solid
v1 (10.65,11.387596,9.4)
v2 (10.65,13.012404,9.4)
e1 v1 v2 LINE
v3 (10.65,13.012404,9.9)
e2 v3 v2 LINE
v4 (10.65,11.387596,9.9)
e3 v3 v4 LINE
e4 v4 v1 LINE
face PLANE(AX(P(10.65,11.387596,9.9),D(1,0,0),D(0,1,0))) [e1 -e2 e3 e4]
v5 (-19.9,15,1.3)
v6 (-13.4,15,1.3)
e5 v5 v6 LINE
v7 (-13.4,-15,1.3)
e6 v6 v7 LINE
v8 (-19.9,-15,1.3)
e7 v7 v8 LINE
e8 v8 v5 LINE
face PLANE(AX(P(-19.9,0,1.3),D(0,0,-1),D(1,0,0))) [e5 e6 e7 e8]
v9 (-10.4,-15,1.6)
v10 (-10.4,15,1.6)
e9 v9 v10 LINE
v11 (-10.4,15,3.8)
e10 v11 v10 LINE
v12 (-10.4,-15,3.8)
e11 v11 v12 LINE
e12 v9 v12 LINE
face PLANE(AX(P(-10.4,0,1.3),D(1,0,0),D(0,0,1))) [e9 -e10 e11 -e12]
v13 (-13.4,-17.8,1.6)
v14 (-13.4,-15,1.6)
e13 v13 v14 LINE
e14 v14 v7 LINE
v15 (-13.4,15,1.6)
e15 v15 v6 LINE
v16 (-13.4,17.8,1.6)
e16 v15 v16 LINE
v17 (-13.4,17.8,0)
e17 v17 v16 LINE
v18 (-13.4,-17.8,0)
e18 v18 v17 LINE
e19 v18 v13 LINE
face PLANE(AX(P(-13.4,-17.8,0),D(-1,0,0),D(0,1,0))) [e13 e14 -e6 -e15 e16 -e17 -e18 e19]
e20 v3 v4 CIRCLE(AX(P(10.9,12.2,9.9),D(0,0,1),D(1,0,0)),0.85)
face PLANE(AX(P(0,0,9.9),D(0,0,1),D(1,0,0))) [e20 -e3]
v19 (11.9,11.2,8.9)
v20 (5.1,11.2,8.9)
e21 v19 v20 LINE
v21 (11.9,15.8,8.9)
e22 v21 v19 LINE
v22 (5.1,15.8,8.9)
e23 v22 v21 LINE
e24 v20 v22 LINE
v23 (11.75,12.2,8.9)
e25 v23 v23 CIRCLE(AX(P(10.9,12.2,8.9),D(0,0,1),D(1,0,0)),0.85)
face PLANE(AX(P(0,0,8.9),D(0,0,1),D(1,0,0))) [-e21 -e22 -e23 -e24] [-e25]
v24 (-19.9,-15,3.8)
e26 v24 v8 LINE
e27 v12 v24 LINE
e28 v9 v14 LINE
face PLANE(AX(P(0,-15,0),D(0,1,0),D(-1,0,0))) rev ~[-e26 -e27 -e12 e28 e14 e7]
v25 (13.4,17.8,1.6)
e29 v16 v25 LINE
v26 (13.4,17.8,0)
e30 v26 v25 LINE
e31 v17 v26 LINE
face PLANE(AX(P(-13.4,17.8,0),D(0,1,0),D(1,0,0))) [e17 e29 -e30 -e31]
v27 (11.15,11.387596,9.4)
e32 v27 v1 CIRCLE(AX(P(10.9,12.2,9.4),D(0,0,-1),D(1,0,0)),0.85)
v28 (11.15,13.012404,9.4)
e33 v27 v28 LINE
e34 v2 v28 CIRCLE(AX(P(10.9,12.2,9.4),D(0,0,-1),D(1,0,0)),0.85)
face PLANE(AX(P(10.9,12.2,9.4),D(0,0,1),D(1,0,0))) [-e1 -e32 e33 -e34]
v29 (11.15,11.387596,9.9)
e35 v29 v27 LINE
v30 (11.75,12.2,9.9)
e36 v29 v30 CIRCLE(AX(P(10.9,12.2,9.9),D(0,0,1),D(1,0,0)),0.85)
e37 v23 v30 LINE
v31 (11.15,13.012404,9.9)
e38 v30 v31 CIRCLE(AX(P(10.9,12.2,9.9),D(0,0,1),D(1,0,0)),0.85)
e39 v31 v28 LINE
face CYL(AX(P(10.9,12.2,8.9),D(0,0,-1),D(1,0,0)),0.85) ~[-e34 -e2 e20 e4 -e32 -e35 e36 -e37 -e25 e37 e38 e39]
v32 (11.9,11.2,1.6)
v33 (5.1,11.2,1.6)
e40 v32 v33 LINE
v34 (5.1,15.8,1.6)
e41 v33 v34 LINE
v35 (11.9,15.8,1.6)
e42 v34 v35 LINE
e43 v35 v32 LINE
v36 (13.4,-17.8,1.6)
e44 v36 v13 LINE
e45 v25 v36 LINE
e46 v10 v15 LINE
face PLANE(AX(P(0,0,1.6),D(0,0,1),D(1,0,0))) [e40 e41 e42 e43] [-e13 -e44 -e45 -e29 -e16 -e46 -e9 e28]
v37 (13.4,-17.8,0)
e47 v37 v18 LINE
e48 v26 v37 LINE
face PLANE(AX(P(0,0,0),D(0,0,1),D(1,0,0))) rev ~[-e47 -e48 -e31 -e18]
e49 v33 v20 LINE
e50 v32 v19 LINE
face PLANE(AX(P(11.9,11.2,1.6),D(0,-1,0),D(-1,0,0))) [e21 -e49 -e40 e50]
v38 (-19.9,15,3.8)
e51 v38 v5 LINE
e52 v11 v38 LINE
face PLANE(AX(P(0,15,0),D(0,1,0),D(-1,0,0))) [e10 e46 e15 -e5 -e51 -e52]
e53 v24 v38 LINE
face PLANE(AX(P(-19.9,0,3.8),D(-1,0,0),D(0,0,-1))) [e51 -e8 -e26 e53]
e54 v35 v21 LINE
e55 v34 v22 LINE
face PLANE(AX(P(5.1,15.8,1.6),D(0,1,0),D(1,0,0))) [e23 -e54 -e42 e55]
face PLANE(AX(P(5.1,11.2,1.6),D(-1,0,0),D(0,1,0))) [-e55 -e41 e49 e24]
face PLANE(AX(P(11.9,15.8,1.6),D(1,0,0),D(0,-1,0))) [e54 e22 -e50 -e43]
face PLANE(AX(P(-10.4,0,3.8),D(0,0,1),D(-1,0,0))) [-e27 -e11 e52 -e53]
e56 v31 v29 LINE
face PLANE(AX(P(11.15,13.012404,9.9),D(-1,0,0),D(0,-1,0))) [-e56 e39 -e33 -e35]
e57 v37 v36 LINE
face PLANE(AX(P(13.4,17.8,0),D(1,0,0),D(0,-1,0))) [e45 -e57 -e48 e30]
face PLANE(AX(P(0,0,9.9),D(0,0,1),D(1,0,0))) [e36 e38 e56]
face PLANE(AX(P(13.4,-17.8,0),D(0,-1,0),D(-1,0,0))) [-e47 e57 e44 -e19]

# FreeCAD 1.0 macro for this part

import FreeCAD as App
import Part
import Sketcher

V = App.Vector

doc = App.newDocument("Part")
body = doc.addObject("PartDesign::Body", "Body")

# Sketch on XY plane
sketch1 = body.newObject("Sketcher::SketchObject", "Sketch")
sketch1.AttachmentSupport = (doc.getObject("XY_Plane"), [""])
sketch1.MapMode = "FlatFace"
sketch1.addGeometry([
    Part.LineSegment(V(13, 18, 0), V(-13, 18, 0)),
    Part.LineSegment(V(-13, 18, 0), V(-13, -18, 0)),
    Part.LineSegment(V(-13, -18, 0), V(13, -18, 0)),
    Part.LineSegment(V(13, -18, 0), V(13, 18, 0)),
], False)
sketch1.addConstraint([
    Sketcher.Constraint("Coincident", 0, 2, 1, 1),
    Sketcher.Constraint("Coincident", 1, 2, 2, 1),
    Sketcher.Constraint("Coincident", 2, 2, 3, 1),
    Sketcher.Constraint("Coincident", 3, 2, 0, 1),
    Sketcher.Constraint("Horizontal", 0),
    Sketcher.Constraint("Vertical", 1),
    Sketcher.Constraint("Horizontal", 2),
    Sketcher.Constraint("Vertical", 3),
    Sketcher.Constraint("Symmetric", 0, 2, 2, 2, -1, 1),
    Sketcher.Constraint("DistanceX", 0, 2, 0, 1, 26.8),
    Sketcher.Constraint("DistanceY", 1, 2, 1, 1, 35.6),
])
pad1 = body.newObject("PartDesign::Pad", "Pad")
pad1.Profile = sketch1
pad1.Length = 1.6

# Sketch on XY plane
sketch2 = body.newObject("Sketcher::SketchObject", "Sketch001")
sketch2.AttachmentSupport = (doc.getObject("XY_Plane"), [""])
sketch2.MapMode = "FlatFace"
sketch2.AttachmentOffset = App.Placement(V(0, 0, 1.6), App.Rotation())
sketch2.addGeometry([
    Part.LineSegment(V(11.9, 15.8, 0), V(5.1, 15.8, 0)),
    Part.LineSegment(V(5.1, 15.8, 0), V(5.1, 11.2, 0)),
    Part.LineSegment(V(5.1, 11.2, 0), V(11.9, 11.2, 0)),
    Part.LineSegment(V(11.9, 11.2, 0), V(11.9, 15.8, 0)),
], False)
sketch2.addConstraint([
    Sketcher.Constraint("Coincident", 0, 2, 1, 1),
    Sketcher.Constraint("Coincident", 1, 2, 2, 1),
    Sketcher.Constraint("Coincident", 2, 2, 3, 1),
    Sketcher.Constraint("Coincident", 3, 2, 0, 1),
    Sketcher.Constraint("Horizontal", 0),
    Sketcher.Constraint("Vertical", 1),
    Sketcher.Constraint("Horizontal", 2),
    Sketcher.Constraint("Vertical", 3),
    Sketcher.Constraint("DistanceX", 0, 2, 0, 1, 6.8),
    Sketcher.Constraint("DistanceY", 1, 2, 1, 1, 4.6),
    Sketcher.Constraint("DistanceX", -1, 1, 0, 2, 5.1),
    Sketcher.Constraint("DistanceY", -1, 1, 0, 2, 15.8),
])
pad2 = body.newObject("PartDesign::Pad", "Pad001")
pad2.Profile = sketch2
pad2.Length = 7.3

# Sketch on XY plane
sketch3 = body.newObject("Sketcher::SketchObject", "Sketch002")
sketch3.AttachmentSupport = (doc.getObject("XY_Plane"), [""])
sketch3.MapMode = "FlatFace"
sketch3.AttachmentOffset = App.Placement(V(0, 0, 8.9), App.Rotation())
sketch3.addGeometry(Part.Circle(V(10.9, 12.2, 0), V(0, 0, 1), 0.8), False)
sketch3.addConstraint([
    Sketcher.Constraint("Diameter", 0, 1.7),
    Sketcher.Constraint("DistanceX", -1, 1, 0, 3, 10.9),
    Sketcher.Constraint("DistanceY", -1, 1, 0, 3, 12.2),
])
pad3 = body.newObject("PartDesign::Pad", "Pad002")
pad3.Profile = sketch3
pad3.Length = 1

# Sketch on XY plane
sketch4 = body.newObject("Sketcher::SketchObject", "Sketch003")
sketch4.AttachmentSupport = (doc.getObject("XY_Plane"), [""])
sketch4.MapMode = "FlatFace"
sketch4.AttachmentOffset = App.Placement(V(0, 0, 9.9), App.Rotation())
sketch4.addGeometry([
    Part.LineSegment(V(11.2, 13.4, 0), V(10.7, 13.4, 0)),
    Part.LineSegment(V(10.7, 13.4, 0), V(10.7, 10.9, 0)),
    Part.LineSegment(V(10.7, 10.9, 0), V(11.2, 10.9, 0)),
    Part.LineSegment(V(11.2, 10.9, 0), V(11.2, 13.4, 0)),
], False)
sketch4.addConstraint([
    Sketcher.Constraint("Coincident", 0, 2, 1, 1),
    Sketcher.Constraint("Coincident", 1, 2, 2, 1),
    Sketcher.Constraint("Coincident", 2, 2, 3, 1),
    Sketcher.Constraint("Coincident", 3, 2, 0, 1),
    Sketcher.Constraint("Horizontal", 0),
    Sketcher.Constraint("Vertical", 1),
    Sketcher.Constraint("Horizontal", 2),
    Sketcher.Constraint("Vertical", 3),
    Sketcher.Constraint("DistanceX", 0, 2, 0, 1, 0.5),
    Sketcher.Constraint("DistanceY", 1, 2, 1, 1, 2.44),
    Sketcher.Constraint("DistanceX", -1, 1, 0, 2, 10.65),
    Sketcher.Constraint("DistanceY", -1, 1, 0, 2, 13.3875),
])
pocket1 = body.newObject("PartDesign::Pocket", "Pocket")
pocket1.Profile = sketch4
pocket1.Length = 0.5

# Sketch on XZ plane
sketch5 = body.newObject("Sketcher::SketchObject", "Sketch004")
sketch5.AttachmentSupport = (doc.getObject("XZ_Plane"), [""])
sketch5.MapMode = "FlatFace"
sketch5.addGeometry([
    Part.LineSegment(V(-19.9, 1.3, 0), V(-19.9, 3.8, 0)),
    Part.LineSegment(V(-19.9, 3.8, 0), V(-10.4, 3.8, 0)),
    Part.LineSegment(V(-10.4, 3.8, 0), V(-10.4, 1.3, 0)),
    Part.LineSegment(V(-10.4, 1.3, 0), V(-19.9, 1.3, 0)),
], False)
sketch5.addConstraint([
    Sketcher.Constraint("Coincident", 0, 2, 1, 1),
    Sketcher.Constraint("Coincident", 1, 2, 2, 1),
    Sketcher.Constraint("Coincident", 2, 2, 3, 1),
    Sketcher.Constraint("Coincident", 3, 2, 0, 1),
    Sketcher.Constraint("Vertical", 0),
    Sketcher.Constraint("Horizontal", 1),
    Sketcher.Constraint("Vertical", 2),
    Sketcher.Constraint("Horizontal", 3),
    Sketcher.Constraint("DistanceY", 0, 1, 0, 2, 2.5),
    Sketcher.Constraint("DistanceX", 1, 1, 1, 2, 9.5),
    Sketcher.Constraint("DistanceX", 0, 2, -1, 1, 19.9),
    Sketcher.Constraint("DistanceY", -1, 1, 0, 2, 3.8),
])
pad4 = body.newObject("PartDesign::Pad", "Pad003")
pad4.Profile = sketch5
pad4.Length = 30
pad4.Midplane = True

doc.recompute()
